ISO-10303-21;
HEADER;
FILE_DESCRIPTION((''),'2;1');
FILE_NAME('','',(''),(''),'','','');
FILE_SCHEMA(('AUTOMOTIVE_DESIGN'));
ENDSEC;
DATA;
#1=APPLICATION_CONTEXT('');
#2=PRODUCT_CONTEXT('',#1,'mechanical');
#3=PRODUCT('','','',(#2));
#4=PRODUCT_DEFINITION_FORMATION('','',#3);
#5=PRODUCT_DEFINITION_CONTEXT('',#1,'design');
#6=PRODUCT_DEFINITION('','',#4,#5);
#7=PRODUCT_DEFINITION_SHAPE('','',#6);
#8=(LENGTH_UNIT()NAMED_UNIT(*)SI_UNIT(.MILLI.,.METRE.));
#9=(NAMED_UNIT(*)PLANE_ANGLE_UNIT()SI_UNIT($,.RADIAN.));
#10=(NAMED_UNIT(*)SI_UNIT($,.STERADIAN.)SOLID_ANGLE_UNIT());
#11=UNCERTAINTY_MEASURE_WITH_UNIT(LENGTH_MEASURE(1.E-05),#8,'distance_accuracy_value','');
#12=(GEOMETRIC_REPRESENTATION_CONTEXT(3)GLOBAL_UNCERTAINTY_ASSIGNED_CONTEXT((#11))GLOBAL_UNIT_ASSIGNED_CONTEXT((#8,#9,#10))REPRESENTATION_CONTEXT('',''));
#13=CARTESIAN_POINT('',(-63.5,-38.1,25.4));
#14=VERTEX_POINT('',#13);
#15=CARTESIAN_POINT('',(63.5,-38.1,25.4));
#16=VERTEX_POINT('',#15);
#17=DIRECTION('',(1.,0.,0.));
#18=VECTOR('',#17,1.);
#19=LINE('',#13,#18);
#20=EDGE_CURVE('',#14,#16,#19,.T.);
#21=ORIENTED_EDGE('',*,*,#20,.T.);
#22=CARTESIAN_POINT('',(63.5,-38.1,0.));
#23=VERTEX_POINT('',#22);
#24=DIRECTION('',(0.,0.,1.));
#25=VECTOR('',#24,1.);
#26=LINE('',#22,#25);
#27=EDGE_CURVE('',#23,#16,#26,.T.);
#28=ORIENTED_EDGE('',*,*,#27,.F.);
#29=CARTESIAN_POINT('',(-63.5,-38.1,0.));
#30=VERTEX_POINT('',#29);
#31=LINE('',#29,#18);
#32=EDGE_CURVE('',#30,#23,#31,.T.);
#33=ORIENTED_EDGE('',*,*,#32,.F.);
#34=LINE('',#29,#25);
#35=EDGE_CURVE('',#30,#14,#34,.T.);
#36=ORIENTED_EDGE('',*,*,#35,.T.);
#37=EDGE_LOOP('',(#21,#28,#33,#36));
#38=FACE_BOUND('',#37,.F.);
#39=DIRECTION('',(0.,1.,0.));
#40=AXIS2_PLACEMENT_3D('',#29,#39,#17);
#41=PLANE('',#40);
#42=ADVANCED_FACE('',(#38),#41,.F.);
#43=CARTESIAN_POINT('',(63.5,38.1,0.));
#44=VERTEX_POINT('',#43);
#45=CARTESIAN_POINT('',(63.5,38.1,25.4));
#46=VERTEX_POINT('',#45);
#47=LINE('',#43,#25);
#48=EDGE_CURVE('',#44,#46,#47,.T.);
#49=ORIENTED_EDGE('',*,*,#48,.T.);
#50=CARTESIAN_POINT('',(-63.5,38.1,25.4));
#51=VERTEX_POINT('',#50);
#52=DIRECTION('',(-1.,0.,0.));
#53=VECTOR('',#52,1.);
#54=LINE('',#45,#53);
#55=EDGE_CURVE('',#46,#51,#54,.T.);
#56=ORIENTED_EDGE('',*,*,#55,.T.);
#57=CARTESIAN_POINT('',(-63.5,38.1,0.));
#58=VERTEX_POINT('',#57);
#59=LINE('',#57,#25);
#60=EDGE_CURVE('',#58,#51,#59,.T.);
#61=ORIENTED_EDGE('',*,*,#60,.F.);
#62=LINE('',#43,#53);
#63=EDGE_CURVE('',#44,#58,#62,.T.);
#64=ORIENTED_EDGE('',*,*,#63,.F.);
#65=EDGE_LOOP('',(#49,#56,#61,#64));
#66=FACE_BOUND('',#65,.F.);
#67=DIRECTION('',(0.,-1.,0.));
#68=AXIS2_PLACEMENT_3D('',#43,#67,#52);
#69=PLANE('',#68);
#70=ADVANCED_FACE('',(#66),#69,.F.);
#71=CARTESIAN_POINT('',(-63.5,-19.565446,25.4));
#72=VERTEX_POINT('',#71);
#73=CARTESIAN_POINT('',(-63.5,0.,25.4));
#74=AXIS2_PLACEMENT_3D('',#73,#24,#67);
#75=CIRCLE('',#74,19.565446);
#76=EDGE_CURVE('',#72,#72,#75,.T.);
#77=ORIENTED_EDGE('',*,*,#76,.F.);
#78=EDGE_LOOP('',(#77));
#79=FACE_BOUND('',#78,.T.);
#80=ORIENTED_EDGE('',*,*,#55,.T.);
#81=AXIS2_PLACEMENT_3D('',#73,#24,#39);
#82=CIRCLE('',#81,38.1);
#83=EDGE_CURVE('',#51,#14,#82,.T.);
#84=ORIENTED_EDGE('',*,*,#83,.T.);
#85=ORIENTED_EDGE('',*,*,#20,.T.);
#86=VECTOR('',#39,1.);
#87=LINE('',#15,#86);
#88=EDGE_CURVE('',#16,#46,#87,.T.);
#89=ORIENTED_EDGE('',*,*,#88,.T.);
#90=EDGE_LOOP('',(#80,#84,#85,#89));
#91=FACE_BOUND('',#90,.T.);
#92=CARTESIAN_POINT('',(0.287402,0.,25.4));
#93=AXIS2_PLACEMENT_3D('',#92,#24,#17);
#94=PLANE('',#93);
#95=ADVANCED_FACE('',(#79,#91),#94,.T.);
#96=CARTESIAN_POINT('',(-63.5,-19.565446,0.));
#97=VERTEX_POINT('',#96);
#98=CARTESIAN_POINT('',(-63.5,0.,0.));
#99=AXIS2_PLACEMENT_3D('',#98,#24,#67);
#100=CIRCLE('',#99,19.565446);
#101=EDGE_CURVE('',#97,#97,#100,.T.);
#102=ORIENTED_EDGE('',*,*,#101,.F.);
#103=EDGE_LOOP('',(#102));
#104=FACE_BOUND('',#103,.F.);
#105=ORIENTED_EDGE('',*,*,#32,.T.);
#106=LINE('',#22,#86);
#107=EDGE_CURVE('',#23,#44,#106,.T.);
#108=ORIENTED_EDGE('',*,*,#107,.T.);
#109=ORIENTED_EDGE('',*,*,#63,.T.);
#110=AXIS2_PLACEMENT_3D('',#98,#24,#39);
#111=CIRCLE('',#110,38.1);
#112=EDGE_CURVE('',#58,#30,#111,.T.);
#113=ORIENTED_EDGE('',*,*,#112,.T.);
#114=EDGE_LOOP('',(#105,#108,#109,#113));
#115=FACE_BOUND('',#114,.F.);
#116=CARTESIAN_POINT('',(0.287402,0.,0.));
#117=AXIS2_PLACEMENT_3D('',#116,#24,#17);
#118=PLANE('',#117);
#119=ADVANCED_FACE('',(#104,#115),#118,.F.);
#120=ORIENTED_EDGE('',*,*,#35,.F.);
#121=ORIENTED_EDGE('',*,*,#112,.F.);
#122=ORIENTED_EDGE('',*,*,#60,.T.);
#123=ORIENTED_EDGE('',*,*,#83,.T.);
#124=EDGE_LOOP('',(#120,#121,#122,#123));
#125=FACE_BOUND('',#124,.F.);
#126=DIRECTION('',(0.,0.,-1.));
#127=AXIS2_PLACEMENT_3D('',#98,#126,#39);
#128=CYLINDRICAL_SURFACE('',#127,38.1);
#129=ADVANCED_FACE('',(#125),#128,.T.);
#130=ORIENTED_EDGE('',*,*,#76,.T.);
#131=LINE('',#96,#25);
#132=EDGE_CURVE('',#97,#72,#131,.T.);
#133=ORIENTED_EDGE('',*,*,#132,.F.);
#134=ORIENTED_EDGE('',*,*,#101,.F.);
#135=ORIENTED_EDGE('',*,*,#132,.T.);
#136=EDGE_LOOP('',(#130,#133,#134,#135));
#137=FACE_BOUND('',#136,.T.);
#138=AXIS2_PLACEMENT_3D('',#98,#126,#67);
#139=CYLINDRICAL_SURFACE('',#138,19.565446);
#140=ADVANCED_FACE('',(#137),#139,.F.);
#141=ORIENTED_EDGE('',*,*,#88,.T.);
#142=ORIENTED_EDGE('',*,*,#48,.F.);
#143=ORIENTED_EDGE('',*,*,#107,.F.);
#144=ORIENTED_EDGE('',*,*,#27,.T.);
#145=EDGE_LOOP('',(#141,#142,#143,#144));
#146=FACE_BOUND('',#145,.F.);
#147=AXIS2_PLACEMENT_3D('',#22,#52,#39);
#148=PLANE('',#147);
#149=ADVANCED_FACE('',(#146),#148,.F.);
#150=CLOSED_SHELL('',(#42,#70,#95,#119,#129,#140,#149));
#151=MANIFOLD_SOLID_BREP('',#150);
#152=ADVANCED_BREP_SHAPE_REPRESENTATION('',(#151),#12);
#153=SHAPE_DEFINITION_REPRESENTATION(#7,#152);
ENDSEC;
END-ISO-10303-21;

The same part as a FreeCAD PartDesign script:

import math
import FreeCAD as App
import Part
import Sketcher
Q = App.Units.Quantity

doc = App.newDocument("Part")
body = doc.addObject("PartDesign::Body", "Body")

# Sketch on XY plane
sketch1 = body.newObject("Sketcher::SketchObject", "Sketch")
sketch1.AttachmentSupport = (doc.getObject("XY_Plane"), [""])
sketch1.MapMode = "FlatFace"
sketch1.addGeometry(Part.Circle(App.Vector(-64, 0, 0), App.Vector(0, 0, 1), 20), False)
sketch1.addConstraint([
    Sketcher.Constraint("PointOnObject", 0, 3, -1),
    Sketcher.Constraint("DistanceX", 0, 3, -1, 1, Q("2.5 in")),
    Sketcher.Constraint("Diameter", 0, Q("39.130892 mm")),
])
pad1 = body.newObject("PartDesign::Pad", "Pad")
pad1.Profile = sketch1
pad1.Length = Q("1 in")

# Sketch on XY plane
sketch2 = body.newObject("Sketcher::SketchObject", "Sketch001")
sketch2.AttachmentSupport = (doc.getObject("XY_Plane"), [""])
sketch2.MapMode = "FlatFace"
sketch2.addGeometry([
    Part.LineSegment(App.Vector(-64, -38, 0), App.Vector(64, -38, 0)),  # 0
    Part.LineSegment(App.Vector(64, -38, 0), App.Vector(64, 38, 0)),  # 1
    Part.LineSegment(App.Vector(64, 38, 0), App.Vector(-64, 38, 0)),  # 2
    Part.ArcOfCircle(Part.Circle(App.Vector(-64, 0, 0), App.Vector(0, 0, 1), 38), math.radians(90), math.radians(270)),  # 3
    Part.Circle(App.Vector(-64, 0, 0), App.Vector(0, 0, 1), 20),  # 4
], False)
sketch2.addConstraint([
    Sketcher.Constraint("Coincident", 0, 2, 1, 1),
    Sketcher.Constraint("Coincident", 1, 2, 2, 1),
    Sketcher.Constraint("Tangent", 2, 2, 3, 1),
    Sketcher.Constraint("Tangent", 3, 2, 0, 1),
    Sketcher.Constraint("Horizontal", 0),
    Sketcher.Constraint("Vertical", 1),
    Sketcher.Constraint("Horizontal", 2),
    Sketcher.Constraint("Coincident", 4, 3, 3, 3),
    Sketcher.Constraint("Symmetric", 0, 2, 2, 2, -1, 1),
    Sketcher.Constraint("Radius", 3, Q("1.5 in")),
    Sketcher.Constraint("DistanceX", 0, 1, 0, 2, Q("5 in")),
    Sketcher.Constraint("Diameter", 4, Q("39.130892 mm")),
])
pad2 = body.newObject("PartDesign::Pad", "Pad001")
pad2.Profile = sketch2
pad2.Length = Q("1 in")

# Sketch on XY plane
sketch3 = body.newObject("Sketcher::SketchObject", "Sketch002")
sketch3.AttachmentSupport = (doc.getObject("XY_Plane"), [""])
sketch3.MapMode = "FlatFace"
sketch3.addGeometry(Part.Circle(App.Vector(-64, 0, 0), App.Vector(0, 0, 1), 20), False)
sketch3.addConstraint([
    Sketcher.Constraint("PointOnObject", 0, 3, -1),
    Sketcher.Constraint("DistanceX", 0, 3, -1, 1, Q("2.5 in")),
    Sketcher.Constraint("Diameter", 0, Q("39.130892 mm")),
])
pocket1 = body.newObject("PartDesign::Pocket", "Pocket")
pocket1.Profile = sketch3
pocket1.Length = Q("1 in")
pocket1.Reversed = True

doc.recompute()
